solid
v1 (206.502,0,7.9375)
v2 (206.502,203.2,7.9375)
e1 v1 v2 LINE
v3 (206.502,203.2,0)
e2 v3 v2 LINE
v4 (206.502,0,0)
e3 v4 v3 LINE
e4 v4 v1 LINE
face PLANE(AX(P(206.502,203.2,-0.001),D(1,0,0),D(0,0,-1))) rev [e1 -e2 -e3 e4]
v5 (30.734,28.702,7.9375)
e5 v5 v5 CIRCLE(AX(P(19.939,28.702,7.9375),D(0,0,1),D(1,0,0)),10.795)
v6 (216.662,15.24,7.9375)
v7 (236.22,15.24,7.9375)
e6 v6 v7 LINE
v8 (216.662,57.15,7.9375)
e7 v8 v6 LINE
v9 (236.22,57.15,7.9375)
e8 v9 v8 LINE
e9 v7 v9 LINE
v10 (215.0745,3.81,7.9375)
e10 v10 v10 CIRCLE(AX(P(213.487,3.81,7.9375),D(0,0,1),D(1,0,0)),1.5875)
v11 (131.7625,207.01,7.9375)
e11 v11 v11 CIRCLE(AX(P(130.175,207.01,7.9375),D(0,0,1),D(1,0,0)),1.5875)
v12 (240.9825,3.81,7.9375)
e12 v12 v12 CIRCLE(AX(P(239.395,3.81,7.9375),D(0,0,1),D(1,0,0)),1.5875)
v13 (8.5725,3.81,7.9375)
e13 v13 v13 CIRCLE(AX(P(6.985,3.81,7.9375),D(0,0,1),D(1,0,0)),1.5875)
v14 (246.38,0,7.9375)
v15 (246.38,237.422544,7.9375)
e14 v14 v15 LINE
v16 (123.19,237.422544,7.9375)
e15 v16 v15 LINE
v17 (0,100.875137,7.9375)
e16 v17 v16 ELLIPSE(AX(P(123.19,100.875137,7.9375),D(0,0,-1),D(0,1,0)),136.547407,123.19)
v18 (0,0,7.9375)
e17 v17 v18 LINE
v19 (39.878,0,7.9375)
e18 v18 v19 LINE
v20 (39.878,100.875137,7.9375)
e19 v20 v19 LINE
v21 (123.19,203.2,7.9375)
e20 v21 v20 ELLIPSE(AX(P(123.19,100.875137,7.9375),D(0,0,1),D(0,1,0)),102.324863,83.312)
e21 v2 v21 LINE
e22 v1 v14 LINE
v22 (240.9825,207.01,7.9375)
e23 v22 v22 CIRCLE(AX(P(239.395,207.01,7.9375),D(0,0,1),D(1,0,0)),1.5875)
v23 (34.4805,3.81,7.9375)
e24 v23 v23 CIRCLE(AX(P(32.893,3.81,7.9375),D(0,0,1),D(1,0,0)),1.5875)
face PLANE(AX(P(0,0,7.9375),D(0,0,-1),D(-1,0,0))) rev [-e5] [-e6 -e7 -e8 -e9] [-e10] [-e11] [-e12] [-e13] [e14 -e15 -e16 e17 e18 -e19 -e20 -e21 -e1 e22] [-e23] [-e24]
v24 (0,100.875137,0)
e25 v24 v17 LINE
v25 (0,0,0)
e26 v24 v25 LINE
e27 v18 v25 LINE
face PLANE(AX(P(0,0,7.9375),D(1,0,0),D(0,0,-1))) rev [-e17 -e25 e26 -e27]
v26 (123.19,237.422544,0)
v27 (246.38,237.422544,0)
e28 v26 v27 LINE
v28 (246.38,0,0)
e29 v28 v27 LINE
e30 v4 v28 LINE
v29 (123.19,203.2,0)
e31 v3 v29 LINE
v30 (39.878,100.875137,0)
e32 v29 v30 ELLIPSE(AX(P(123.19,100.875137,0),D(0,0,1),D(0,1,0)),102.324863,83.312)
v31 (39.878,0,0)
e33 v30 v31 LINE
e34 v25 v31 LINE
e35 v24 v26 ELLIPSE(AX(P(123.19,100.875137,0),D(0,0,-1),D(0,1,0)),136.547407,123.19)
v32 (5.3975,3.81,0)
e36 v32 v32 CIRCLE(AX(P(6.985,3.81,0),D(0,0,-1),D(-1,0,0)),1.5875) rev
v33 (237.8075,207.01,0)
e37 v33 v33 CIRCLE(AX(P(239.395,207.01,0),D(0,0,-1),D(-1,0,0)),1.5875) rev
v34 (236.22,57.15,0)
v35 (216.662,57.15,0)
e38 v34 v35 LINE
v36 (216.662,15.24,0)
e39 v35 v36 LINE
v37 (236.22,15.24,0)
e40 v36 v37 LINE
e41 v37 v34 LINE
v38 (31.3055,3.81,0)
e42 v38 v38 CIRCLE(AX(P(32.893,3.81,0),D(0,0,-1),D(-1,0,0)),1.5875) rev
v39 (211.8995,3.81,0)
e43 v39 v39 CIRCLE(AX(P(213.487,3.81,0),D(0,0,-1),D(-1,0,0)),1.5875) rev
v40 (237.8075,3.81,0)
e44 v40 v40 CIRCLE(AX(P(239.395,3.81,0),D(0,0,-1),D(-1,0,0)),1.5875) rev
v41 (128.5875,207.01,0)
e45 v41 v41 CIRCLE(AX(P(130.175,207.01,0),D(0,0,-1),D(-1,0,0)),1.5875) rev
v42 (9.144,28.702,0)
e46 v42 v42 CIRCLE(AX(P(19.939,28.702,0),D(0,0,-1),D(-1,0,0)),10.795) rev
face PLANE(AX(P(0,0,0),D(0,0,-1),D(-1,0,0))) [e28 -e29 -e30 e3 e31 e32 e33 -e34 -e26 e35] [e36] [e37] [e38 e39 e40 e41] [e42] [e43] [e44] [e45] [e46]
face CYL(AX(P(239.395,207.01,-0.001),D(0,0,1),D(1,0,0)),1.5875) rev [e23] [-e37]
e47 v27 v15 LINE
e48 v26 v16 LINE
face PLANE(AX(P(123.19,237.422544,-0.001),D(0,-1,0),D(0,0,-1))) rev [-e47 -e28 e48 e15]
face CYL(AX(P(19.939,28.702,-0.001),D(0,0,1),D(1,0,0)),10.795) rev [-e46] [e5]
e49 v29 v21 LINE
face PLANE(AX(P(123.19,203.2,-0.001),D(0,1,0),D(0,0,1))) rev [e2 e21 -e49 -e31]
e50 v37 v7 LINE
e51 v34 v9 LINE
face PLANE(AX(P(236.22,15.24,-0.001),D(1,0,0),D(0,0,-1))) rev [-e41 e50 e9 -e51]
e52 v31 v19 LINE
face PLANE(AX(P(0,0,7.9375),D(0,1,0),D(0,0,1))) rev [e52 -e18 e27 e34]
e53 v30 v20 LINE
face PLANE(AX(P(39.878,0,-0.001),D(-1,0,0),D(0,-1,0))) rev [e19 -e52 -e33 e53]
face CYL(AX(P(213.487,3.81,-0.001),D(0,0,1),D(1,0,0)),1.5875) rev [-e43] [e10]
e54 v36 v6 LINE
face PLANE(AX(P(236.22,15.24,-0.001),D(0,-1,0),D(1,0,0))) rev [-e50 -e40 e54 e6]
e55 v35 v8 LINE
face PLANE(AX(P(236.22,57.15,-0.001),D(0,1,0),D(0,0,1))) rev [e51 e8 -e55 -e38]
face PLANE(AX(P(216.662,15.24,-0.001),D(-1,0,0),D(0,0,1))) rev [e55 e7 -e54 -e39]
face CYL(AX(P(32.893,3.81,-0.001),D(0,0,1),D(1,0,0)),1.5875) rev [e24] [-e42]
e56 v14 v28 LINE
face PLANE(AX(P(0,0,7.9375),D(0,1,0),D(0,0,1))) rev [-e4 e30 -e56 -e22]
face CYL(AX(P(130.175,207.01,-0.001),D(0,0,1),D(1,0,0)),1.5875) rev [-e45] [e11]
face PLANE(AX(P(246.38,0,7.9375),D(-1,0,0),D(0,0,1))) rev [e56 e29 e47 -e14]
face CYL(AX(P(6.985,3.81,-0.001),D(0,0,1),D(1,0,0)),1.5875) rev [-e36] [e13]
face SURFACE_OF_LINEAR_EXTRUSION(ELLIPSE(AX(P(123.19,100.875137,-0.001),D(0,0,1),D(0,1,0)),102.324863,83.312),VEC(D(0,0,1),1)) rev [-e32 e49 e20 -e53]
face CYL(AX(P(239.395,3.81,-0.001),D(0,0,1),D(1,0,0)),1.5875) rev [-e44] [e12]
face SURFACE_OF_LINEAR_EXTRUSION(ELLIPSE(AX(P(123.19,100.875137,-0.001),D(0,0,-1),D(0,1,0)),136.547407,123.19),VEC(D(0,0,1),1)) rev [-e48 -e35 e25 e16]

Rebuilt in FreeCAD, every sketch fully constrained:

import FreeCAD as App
import Part
import Sketcher
from FreeCAD import Vector
Q = App.Units.Quantity


def add_polygon(sketch, points):
    """Adds a closed chain of lines whose ends are joined by coincident constraints."""
    first, n = sketch.GeometryCount, len(points)
    for a, b in zip(points, points[1:] + points[:1]):
        sketch.addGeometry(Part.LineSegment(App.Vector(*a, 0), App.Vector(*b, 0)), False)
    for i in range(n):
        sketch.addConstraint(Sketcher.Constraint("Coincident", first + i, 2, first + (i + 1) % n, 1))

doc = App.newDocument("Part")
params = doc.addObject("Spreadsheet::Sheet", "Params")
for row, (alias, value) in enumerate([
    ("sketch1_height", "10 in"),
    ("sketch1_width", "9.7 in"),
    ("pad1_length", "0.3125 in"),
    ("sketch2_width", "9.7 in"),
    ("sketch3_width", "6.56 in"),
    ("sketch4_diameter", "0.125 in"),
    ("sketch5_diameter", "0.125 in"),
    ("sketch6_diameter", "0.125 in"),
    ("sketch7_diameter", "0.125 in"),
    ("sketch8_diameter", "0.125 in"),
    ("sketch9_diameter", "0.125 in"),
    ("sketch10_diameter", "0.85 in"),
    ("sketch11_width", "0.77 in"),
    ("sketch11_height", "1.65 in"),
], start=1):
    params.set(f"A{row}", alias)
    params.set(f"B{row}", "=" + value)
    params.setAlias(f"B{row}", alias)

body = doc.addObject("PartDesign::Body", "Body")

sketch1 = doc.addObject("Sketcher::SketchObject", "Sketch")
body.addObject(sketch1)
sketch1.AttachmentSupport = (doc.XY_Plane, [""])
sketch1.MapMode = "FlatFace"
add_polygon(sketch1, [(0, 254), (0, 0), (246.38, 0), (246.38, 254)])
sketch1.addConstraint([
    Sketcher.Constraint("Vertical", 0),
    Sketcher.Constraint("Horizontal", 1),
    Sketcher.Constraint("Vertical", 2),
    Sketcher.Constraint("Horizontal", 3),
    Sketcher.Constraint("Coincident", 0, 2, -1, 1),
    Sketcher.Constraint("DistanceY", 0, 2, 0, 1, Q("10 in")),
    Sketcher.Constraint("DistanceX", 1, 1, 1, 2, Q("9.7 in")),
])
sketch1.setExpression("Constraints[9]", "Params.sketch1_height")
sketch1.setExpression("Constraints[10]", "Params.sketch1_width")
pad1 = doc.addObject("PartDesign::Pad", "Pad")
body.addObject(pad1)
pad1.Profile = sketch1
pad1.setExpression("Length", "Params.pad1_length")

sketch2 = doc.addObject("Sketcher::SketchObject", "Sketch001")
body.addObject(sketch2)
sketch2.AttachmentSupport = (doc.XY_Plane, [""])
sketch2.MapMode = "FlatFace"
sketch2.AttachmentOffset = App.Placement(Vector(0, 0, 0.3125 * 25.4), App.Rotation())
sketch2.addGeometry([
    Part.LineSegment(Vector(0, 254, 0), Vector(0, 100.875137, 0)),
    Part.BSplineCurve([Vector(123.19, 237.422544, 0), Vector(0, 237.422544, 0), Vector(0, 100.875137, 0)], [3, 3], [0, 1.570796327], False, 2, [1, 0.707106781, 1], False),
    Part.LineSegment(Vector(123.19, 237.422544, 0), Vector(246.38, 237.422544, 0)),
    Part.LineSegment(Vector(246.38, 237.422544, 0), Vector(246.38, 254, 0)),
    Part.LineSegment(Vector(246.38, 254, 0), Vector(0, 254, 0)),
], False)
sketch2.addConstraint([
    Sketcher.Constraint("Block", 1),
    Sketcher.Constraint("Coincident", 0, 2, 1, 2),
    Sketcher.Constraint("Coincident", 1, 1, 2, 1),
    Sketcher.Constraint("Coincident", 2, 2, 3, 1),
    Sketcher.Constraint("Coincident", 3, 2, 4, 1),
    Sketcher.Constraint("Coincident", 4, 2, 0, 1),
    Sketcher.Constraint("Vertical", 0),
    Sketcher.Constraint("Horizontal", 2),
    Sketcher.Constraint("Vertical", 3),
    Sketcher.Constraint("Horizontal", 4),
    Sketcher.Constraint("DistanceX", 4, 2, 4, 1, Q("9.7 in")),
    Sketcher.Constraint("DistanceY", -1, 1, 3, 2, Q("10 in")),
])
sketch2.setExpression("Constraints[10]", "Params.sketch2_width")
pocket1 = doc.addObject("PartDesign::Pocket", "Pocket")
body.addObject(pocket1)
pocket1.Profile = sketch2
pocket1.Type = "UpToFirst"

sketch3 = doc.addObject("Sketcher::SketchObject", "Sketch002")
body.addObject(sketch3)
sketch3.AttachmentSupport = (doc.XY_Plane, [""])
sketch3.MapMode = "FlatFace"
sketch3.AttachmentOffset = App.Placement(Vector(0, 0, 0.3125 * 25.4), App.Rotation())
sketch3.addGeometry([
    Part.LineSegment(Vector(39.878, 100.875137, 0), Vector(39.878, 0, 0)),
    Part.LineSegment(Vector(39.878, 0, 0), Vector(206.502, 0, 0)),
    Part.LineSegment(Vector(206.502, 0, 0), Vector(206.502, 203.2, 0)),
    Part.LineSegment(Vector(206.502, 203.2, 0), Vector(123.19, 203.2, 0)),
    Part.BSplineCurve([Vector(123.19, 203.2, 0), Vector(39.878, 203.2, 0), Vector(39.878, 100.875137, 0)], [3, 3], [0, 1.570796327], False, 2, [1, 0.707106781, 1], False),
], False)
sketch3.addConstraint([
    Sketcher.Constraint("Block", 4),
    Sketcher.Constraint("Coincident", 0, 2, 1, 1),
    Sketcher.Constraint("Coincident", 1, 2, 2, 1),
    Sketcher.Constraint("Coincident", 2, 2, 3, 1),
    Sketcher.Constraint("Coincident", 3, 2, 4, 1),
    Sketcher.Constraint("Coincident", 4, 2, 0, 1),
    Sketcher.Constraint("Vertical", 0),
    Sketcher.Constraint("Horizontal", 1),
    Sketcher.Constraint("Vertical", 2),
    Sketcher.Constraint("Horizontal", 3),
    Sketcher.Constraint("PointOnObject", 0, 2, -1),
    Sketcher.Constraint("DistanceX", 1, 1, 1, 2, Q("6.56 in")),
])
sketch3.setExpression("Constraints[11]", "Params.sketch3_width")
pocket2 = doc.addObject("PartDesign::Pocket", "Pocket001")
body.addObject(pocket2)
pocket2.Profile = sketch3
pocket2.Type = "UpToFirst"

sketch4 = doc.addObject("Sketcher::SketchObject", "Sketch003")
body.addObject(sketch4)
sketch4.AttachmentSupport = (doc.XY_Plane, [""])
sketch4.MapMode = "FlatFace"
sketch4.AttachmentOffset = App.Placement(Vector(0, 0, 0.3125 * 25.4), App.Rotation())
sketch4.addGeometry(Part.Circle(Vector(6.985, 3.81, 0), Vector(0, 0, 1), 1.5875), False)
sketch4.addConstraint([
    Sketcher.Constraint("Diameter", 0, Q("0.125 in")),
    Sketcher.Constraint("DistanceY", -1, 1, 0, 3, Q("0.15 in")),
    Sketcher.Constraint("DistanceX", -1, 1, 0, 3, Q("0.275 in")),
])
sketch4.setExpression("Constraints[0]", "Params.sketch4_diameter")
pocket3 = doc.addObject("PartDesign::Pocket", "Pocket002")
body.addObject(pocket3)
pocket3.Profile = sketch4
pocket3.Type = "UpToFirst"

sketch5 = doc.addObject("Sketcher::SketchObject", "Sketch004")
body.addObject(sketch5)
sketch5.AttachmentSupport = (doc.XY_Plane, [""])
sketch5.MapMode = "FlatFace"
sketch5.AttachmentOffset = App.Placement(Vector(0, 0, 0.3125 * 25.4), App.Rotation())
sketch5.addGeometry(Part.Circle(Vector(32.893, 3.81, 0), Vector(0, 0, 1), 1.5875), False)
sketch5.addConstraint([
    Sketcher.Constraint("Diameter", 0, Q("0.125 in")),
    Sketcher.Constraint("DistanceY", -1, 1, 0, 3, Q("0.15 in")),
    Sketcher.Constraint("DistanceX", -1, 1, 0, 3, Q("1.295 in")),
])
sketch5.setExpression("Constraints[0]", "Params.sketch5_diameter")
pocket4 = doc.addObject("PartDesign::Pocket", "Pocket003")
body.addObject(pocket4)
pocket4.Profile = sketch5
pocket4.Type = "UpToFirst"

sketch6 = doc.addObject("Sketcher::SketchObject", "Sketch005")
body.addObject(sketch6)
sketch6.AttachmentSupport = (doc.XY_Plane, [""])
sketch6.MapMode = "FlatFace"
sketch6.AttachmentOffset = App.Placement(Vector(0, 0, 0.3125 * 25.4), App.Rotation())
sketch6.addGeometry(Part.Circle(Vector(213.487, 3.81, 0), Vector(0, 0, 1), 1.5875), False)
sketch6.addConstraint([
    Sketcher.Constraint("Diameter", 0, Q("0.125 in")),
    Sketcher.Constraint("DistanceY", -1, 1, 0, 3, Q("0.15 in")),
    Sketcher.Constraint("DistanceX", -1, 1, 0, 3, Q("8.405 in")),
])
sketch6.setExpression("Constraints[0]", "Params.sketch6_diameter")
pocket5 = doc.addObject("PartDesign::Pocket", "Pocket004")
body.addObject(pocket5)
pocket5.Profile = sketch6
pocket5.Type = "UpToFirst"

sketch7 = doc.addObject("Sketcher::SketchObject", "Sketch006")
body.addObject(sketch7)
sketch7.AttachmentSupport = (doc.XY_Plane, [""])
sketch7.MapMode = "FlatFace"
sketch7.AttachmentOffset = App.Placement(Vector(0, 0, 0.3125 * 25.4), App.Rotation())
sketch7.addGeometry(Part.Circle(Vector(239.395, 3.81, 0), Vector(0, 0, 1), 1.5875), False)
sketch7.addConstraint([
    Sketcher.Constraint("Diameter", 0, Q("0.125 in")),
    Sketcher.Constraint("DistanceY", -1, 1, 0, 3, Q("0.15 in")),
    Sketcher.Constraint("DistanceX", -1, 1, 0, 3, Q("9.425 in")),
])
sketch7.setExpression("Constraints[0]", "Params.sketch7_diameter")
pocket6 = doc.addObject("PartDesign::Pocket", "Pocket005")
body.addObject(pocket6)
pocket6.Profile = sketch7
pocket6.Type = "UpToFirst"

sketch8 = doc.addObject("Sketcher::SketchObject", "Sketch007")
body.addObject(sketch8)
sketch8.AttachmentSupport = (doc.XY_Plane, [""])
sketch8.MapMode = "FlatFace"
sketch8.AttachmentOffset = App.Placement(Vector(0, 0, 0.3125 * 25.4), App.Rotation())
sketch8.addGeometry(Part.Circle(Vector(130.175, 207.01, 0), Vector(0, 0, 1), 1.5875), False)
sketch8.addConstraint([
    Sketcher.Constraint("Diameter", 0, Q("0.125 in")),
    Sketcher.Constraint("DistanceY", -1, 1, 0, 3, Q("8.15 in")),
    Sketcher.Constraint("DistanceX", -1, 1, 0, 3, Q("5.125 in")),
])
sketch8.setExpression("Constraints[0]", "Params.sketch8_diameter")
pocket7 = doc.addObject("PartDesign::Pocket", "Pocket006")
body.addObject(pocket7)
pocket7.Profile = sketch8
pocket7.Type = "UpToFirst"

sketch9 = doc.addObject("Sketcher::SketchObject", "Sketch008")
body.addObject(sketch9)
sketch9.AttachmentSupport = (doc.XY_Plane, [""])
sketch9.MapMode = "FlatFace"
sketch9.AttachmentOffset = App.Placement(Vector(0, 0, 0.3125 * 25.4), App.Rotation())
sketch9.addGeometry(Part.Circle(Vector(239.395, 207.01, 0), Vector(0, 0, 1), 1.5875), False)
sketch9.addConstraint([
    Sketcher.Constraint("Diameter", 0, Q("0.125 in")),
    Sketcher.Constraint("DistanceY", -1, 1, 0, 3, Q("8.15 in")),
    Sketcher.Constraint("DistanceX", -1, 1, 0, 3, Q("9.425 in")),
])
sketch9.setExpression("Constraints[0]", "Params.sketch9_diameter")
pocket8 = doc.addObject("PartDesign::Pocket", "Pocket007")
body.addObject(pocket8)
pocket8.Profile = sketch9
pocket8.Type = "UpToFirst"

sketch10 = doc.addObject("Sketcher::SketchObject", "Sketch009")
body.addObject(sketch10)
sketch10.AttachmentSupport = (doc.XY_Plane, [""])
sketch10.MapMode = "FlatFace"
sketch10.AttachmentOffset = App.Placement(Vector(0, 0, 0.3125 * 25.4), App.Rotation())
sketch10.addGeometry(Part.Circle(Vector(19.939, 28.702, 0), Vector(0, 0, 1), 10.795), False)
sketch10.addConstraint([
    Sketcher.Constraint("Diameter", 0, Q("0.85 in")),
    Sketcher.Constraint("DistanceY", -1, 1, 0, 3, Q("1.13 in")),
    Sketcher.Constraint("DistanceX", -1, 1, 0, 3, Q("0.785 in")),
])
sketch10.setExpression("Constraints[0]", "Params.sketch10_diameter")
pocket9 = doc.addObject("PartDesign::Pocket", "Pocket008")
body.addObject(pocket9)
pocket9.Profile = sketch10
pocket9.Type = "UpToFirst"

sketch11 = doc.addObject("Sketcher::SketchObject", "Sketch010")
body.addObject(sketch11)
sketch11.AttachmentSupport = (doc.XY_Plane, [""])
sketch11.MapMode = "FlatFace"
sketch11.AttachmentOffset = App.Placement(Vector(0, 0, 0.3125 * 25.4), App.Rotation())
add_polygon(sketch11, [(216.662, 57.15), (216.662, 15.24), (236.22, 15.24), (236.22, 57.15)])
sketch11.addConstraint([
    Sketcher.Constraint("Vertical", 0),
    Sketcher.Constraint("Horizontal", 1),
    Sketcher.Constraint("Vertical", 2),
    Sketcher.Constraint("Horizontal", 3),
    Sketcher.Constraint("DistanceX", 1, 1, 1, 2, Q("0.77 in")),
    Sketcher.Constraint("DistanceY", 0, 2, 0, 1, Q("1.65 in")),
    Sketcher.Constraint("DistanceY", -1, 1, 0, 2, Q("0.6 in")),
    Sketcher.Constraint("DistanceX", -1, 1, 1, 2, Q("9.3 in")),
])
sketch11.setExpression("Constraints[8]", "Params.sketch11_width")
sketch11.setExpression("Constraints[9]", "Params.sketch11_height")
pocket10 = doc.addObject("PartDesign::Pocket", "Pocket009")
body.addObject(pocket10)
pocket10.Profile = sketch11
pocket10.Type = "UpToFirst"

doc.recompute()
